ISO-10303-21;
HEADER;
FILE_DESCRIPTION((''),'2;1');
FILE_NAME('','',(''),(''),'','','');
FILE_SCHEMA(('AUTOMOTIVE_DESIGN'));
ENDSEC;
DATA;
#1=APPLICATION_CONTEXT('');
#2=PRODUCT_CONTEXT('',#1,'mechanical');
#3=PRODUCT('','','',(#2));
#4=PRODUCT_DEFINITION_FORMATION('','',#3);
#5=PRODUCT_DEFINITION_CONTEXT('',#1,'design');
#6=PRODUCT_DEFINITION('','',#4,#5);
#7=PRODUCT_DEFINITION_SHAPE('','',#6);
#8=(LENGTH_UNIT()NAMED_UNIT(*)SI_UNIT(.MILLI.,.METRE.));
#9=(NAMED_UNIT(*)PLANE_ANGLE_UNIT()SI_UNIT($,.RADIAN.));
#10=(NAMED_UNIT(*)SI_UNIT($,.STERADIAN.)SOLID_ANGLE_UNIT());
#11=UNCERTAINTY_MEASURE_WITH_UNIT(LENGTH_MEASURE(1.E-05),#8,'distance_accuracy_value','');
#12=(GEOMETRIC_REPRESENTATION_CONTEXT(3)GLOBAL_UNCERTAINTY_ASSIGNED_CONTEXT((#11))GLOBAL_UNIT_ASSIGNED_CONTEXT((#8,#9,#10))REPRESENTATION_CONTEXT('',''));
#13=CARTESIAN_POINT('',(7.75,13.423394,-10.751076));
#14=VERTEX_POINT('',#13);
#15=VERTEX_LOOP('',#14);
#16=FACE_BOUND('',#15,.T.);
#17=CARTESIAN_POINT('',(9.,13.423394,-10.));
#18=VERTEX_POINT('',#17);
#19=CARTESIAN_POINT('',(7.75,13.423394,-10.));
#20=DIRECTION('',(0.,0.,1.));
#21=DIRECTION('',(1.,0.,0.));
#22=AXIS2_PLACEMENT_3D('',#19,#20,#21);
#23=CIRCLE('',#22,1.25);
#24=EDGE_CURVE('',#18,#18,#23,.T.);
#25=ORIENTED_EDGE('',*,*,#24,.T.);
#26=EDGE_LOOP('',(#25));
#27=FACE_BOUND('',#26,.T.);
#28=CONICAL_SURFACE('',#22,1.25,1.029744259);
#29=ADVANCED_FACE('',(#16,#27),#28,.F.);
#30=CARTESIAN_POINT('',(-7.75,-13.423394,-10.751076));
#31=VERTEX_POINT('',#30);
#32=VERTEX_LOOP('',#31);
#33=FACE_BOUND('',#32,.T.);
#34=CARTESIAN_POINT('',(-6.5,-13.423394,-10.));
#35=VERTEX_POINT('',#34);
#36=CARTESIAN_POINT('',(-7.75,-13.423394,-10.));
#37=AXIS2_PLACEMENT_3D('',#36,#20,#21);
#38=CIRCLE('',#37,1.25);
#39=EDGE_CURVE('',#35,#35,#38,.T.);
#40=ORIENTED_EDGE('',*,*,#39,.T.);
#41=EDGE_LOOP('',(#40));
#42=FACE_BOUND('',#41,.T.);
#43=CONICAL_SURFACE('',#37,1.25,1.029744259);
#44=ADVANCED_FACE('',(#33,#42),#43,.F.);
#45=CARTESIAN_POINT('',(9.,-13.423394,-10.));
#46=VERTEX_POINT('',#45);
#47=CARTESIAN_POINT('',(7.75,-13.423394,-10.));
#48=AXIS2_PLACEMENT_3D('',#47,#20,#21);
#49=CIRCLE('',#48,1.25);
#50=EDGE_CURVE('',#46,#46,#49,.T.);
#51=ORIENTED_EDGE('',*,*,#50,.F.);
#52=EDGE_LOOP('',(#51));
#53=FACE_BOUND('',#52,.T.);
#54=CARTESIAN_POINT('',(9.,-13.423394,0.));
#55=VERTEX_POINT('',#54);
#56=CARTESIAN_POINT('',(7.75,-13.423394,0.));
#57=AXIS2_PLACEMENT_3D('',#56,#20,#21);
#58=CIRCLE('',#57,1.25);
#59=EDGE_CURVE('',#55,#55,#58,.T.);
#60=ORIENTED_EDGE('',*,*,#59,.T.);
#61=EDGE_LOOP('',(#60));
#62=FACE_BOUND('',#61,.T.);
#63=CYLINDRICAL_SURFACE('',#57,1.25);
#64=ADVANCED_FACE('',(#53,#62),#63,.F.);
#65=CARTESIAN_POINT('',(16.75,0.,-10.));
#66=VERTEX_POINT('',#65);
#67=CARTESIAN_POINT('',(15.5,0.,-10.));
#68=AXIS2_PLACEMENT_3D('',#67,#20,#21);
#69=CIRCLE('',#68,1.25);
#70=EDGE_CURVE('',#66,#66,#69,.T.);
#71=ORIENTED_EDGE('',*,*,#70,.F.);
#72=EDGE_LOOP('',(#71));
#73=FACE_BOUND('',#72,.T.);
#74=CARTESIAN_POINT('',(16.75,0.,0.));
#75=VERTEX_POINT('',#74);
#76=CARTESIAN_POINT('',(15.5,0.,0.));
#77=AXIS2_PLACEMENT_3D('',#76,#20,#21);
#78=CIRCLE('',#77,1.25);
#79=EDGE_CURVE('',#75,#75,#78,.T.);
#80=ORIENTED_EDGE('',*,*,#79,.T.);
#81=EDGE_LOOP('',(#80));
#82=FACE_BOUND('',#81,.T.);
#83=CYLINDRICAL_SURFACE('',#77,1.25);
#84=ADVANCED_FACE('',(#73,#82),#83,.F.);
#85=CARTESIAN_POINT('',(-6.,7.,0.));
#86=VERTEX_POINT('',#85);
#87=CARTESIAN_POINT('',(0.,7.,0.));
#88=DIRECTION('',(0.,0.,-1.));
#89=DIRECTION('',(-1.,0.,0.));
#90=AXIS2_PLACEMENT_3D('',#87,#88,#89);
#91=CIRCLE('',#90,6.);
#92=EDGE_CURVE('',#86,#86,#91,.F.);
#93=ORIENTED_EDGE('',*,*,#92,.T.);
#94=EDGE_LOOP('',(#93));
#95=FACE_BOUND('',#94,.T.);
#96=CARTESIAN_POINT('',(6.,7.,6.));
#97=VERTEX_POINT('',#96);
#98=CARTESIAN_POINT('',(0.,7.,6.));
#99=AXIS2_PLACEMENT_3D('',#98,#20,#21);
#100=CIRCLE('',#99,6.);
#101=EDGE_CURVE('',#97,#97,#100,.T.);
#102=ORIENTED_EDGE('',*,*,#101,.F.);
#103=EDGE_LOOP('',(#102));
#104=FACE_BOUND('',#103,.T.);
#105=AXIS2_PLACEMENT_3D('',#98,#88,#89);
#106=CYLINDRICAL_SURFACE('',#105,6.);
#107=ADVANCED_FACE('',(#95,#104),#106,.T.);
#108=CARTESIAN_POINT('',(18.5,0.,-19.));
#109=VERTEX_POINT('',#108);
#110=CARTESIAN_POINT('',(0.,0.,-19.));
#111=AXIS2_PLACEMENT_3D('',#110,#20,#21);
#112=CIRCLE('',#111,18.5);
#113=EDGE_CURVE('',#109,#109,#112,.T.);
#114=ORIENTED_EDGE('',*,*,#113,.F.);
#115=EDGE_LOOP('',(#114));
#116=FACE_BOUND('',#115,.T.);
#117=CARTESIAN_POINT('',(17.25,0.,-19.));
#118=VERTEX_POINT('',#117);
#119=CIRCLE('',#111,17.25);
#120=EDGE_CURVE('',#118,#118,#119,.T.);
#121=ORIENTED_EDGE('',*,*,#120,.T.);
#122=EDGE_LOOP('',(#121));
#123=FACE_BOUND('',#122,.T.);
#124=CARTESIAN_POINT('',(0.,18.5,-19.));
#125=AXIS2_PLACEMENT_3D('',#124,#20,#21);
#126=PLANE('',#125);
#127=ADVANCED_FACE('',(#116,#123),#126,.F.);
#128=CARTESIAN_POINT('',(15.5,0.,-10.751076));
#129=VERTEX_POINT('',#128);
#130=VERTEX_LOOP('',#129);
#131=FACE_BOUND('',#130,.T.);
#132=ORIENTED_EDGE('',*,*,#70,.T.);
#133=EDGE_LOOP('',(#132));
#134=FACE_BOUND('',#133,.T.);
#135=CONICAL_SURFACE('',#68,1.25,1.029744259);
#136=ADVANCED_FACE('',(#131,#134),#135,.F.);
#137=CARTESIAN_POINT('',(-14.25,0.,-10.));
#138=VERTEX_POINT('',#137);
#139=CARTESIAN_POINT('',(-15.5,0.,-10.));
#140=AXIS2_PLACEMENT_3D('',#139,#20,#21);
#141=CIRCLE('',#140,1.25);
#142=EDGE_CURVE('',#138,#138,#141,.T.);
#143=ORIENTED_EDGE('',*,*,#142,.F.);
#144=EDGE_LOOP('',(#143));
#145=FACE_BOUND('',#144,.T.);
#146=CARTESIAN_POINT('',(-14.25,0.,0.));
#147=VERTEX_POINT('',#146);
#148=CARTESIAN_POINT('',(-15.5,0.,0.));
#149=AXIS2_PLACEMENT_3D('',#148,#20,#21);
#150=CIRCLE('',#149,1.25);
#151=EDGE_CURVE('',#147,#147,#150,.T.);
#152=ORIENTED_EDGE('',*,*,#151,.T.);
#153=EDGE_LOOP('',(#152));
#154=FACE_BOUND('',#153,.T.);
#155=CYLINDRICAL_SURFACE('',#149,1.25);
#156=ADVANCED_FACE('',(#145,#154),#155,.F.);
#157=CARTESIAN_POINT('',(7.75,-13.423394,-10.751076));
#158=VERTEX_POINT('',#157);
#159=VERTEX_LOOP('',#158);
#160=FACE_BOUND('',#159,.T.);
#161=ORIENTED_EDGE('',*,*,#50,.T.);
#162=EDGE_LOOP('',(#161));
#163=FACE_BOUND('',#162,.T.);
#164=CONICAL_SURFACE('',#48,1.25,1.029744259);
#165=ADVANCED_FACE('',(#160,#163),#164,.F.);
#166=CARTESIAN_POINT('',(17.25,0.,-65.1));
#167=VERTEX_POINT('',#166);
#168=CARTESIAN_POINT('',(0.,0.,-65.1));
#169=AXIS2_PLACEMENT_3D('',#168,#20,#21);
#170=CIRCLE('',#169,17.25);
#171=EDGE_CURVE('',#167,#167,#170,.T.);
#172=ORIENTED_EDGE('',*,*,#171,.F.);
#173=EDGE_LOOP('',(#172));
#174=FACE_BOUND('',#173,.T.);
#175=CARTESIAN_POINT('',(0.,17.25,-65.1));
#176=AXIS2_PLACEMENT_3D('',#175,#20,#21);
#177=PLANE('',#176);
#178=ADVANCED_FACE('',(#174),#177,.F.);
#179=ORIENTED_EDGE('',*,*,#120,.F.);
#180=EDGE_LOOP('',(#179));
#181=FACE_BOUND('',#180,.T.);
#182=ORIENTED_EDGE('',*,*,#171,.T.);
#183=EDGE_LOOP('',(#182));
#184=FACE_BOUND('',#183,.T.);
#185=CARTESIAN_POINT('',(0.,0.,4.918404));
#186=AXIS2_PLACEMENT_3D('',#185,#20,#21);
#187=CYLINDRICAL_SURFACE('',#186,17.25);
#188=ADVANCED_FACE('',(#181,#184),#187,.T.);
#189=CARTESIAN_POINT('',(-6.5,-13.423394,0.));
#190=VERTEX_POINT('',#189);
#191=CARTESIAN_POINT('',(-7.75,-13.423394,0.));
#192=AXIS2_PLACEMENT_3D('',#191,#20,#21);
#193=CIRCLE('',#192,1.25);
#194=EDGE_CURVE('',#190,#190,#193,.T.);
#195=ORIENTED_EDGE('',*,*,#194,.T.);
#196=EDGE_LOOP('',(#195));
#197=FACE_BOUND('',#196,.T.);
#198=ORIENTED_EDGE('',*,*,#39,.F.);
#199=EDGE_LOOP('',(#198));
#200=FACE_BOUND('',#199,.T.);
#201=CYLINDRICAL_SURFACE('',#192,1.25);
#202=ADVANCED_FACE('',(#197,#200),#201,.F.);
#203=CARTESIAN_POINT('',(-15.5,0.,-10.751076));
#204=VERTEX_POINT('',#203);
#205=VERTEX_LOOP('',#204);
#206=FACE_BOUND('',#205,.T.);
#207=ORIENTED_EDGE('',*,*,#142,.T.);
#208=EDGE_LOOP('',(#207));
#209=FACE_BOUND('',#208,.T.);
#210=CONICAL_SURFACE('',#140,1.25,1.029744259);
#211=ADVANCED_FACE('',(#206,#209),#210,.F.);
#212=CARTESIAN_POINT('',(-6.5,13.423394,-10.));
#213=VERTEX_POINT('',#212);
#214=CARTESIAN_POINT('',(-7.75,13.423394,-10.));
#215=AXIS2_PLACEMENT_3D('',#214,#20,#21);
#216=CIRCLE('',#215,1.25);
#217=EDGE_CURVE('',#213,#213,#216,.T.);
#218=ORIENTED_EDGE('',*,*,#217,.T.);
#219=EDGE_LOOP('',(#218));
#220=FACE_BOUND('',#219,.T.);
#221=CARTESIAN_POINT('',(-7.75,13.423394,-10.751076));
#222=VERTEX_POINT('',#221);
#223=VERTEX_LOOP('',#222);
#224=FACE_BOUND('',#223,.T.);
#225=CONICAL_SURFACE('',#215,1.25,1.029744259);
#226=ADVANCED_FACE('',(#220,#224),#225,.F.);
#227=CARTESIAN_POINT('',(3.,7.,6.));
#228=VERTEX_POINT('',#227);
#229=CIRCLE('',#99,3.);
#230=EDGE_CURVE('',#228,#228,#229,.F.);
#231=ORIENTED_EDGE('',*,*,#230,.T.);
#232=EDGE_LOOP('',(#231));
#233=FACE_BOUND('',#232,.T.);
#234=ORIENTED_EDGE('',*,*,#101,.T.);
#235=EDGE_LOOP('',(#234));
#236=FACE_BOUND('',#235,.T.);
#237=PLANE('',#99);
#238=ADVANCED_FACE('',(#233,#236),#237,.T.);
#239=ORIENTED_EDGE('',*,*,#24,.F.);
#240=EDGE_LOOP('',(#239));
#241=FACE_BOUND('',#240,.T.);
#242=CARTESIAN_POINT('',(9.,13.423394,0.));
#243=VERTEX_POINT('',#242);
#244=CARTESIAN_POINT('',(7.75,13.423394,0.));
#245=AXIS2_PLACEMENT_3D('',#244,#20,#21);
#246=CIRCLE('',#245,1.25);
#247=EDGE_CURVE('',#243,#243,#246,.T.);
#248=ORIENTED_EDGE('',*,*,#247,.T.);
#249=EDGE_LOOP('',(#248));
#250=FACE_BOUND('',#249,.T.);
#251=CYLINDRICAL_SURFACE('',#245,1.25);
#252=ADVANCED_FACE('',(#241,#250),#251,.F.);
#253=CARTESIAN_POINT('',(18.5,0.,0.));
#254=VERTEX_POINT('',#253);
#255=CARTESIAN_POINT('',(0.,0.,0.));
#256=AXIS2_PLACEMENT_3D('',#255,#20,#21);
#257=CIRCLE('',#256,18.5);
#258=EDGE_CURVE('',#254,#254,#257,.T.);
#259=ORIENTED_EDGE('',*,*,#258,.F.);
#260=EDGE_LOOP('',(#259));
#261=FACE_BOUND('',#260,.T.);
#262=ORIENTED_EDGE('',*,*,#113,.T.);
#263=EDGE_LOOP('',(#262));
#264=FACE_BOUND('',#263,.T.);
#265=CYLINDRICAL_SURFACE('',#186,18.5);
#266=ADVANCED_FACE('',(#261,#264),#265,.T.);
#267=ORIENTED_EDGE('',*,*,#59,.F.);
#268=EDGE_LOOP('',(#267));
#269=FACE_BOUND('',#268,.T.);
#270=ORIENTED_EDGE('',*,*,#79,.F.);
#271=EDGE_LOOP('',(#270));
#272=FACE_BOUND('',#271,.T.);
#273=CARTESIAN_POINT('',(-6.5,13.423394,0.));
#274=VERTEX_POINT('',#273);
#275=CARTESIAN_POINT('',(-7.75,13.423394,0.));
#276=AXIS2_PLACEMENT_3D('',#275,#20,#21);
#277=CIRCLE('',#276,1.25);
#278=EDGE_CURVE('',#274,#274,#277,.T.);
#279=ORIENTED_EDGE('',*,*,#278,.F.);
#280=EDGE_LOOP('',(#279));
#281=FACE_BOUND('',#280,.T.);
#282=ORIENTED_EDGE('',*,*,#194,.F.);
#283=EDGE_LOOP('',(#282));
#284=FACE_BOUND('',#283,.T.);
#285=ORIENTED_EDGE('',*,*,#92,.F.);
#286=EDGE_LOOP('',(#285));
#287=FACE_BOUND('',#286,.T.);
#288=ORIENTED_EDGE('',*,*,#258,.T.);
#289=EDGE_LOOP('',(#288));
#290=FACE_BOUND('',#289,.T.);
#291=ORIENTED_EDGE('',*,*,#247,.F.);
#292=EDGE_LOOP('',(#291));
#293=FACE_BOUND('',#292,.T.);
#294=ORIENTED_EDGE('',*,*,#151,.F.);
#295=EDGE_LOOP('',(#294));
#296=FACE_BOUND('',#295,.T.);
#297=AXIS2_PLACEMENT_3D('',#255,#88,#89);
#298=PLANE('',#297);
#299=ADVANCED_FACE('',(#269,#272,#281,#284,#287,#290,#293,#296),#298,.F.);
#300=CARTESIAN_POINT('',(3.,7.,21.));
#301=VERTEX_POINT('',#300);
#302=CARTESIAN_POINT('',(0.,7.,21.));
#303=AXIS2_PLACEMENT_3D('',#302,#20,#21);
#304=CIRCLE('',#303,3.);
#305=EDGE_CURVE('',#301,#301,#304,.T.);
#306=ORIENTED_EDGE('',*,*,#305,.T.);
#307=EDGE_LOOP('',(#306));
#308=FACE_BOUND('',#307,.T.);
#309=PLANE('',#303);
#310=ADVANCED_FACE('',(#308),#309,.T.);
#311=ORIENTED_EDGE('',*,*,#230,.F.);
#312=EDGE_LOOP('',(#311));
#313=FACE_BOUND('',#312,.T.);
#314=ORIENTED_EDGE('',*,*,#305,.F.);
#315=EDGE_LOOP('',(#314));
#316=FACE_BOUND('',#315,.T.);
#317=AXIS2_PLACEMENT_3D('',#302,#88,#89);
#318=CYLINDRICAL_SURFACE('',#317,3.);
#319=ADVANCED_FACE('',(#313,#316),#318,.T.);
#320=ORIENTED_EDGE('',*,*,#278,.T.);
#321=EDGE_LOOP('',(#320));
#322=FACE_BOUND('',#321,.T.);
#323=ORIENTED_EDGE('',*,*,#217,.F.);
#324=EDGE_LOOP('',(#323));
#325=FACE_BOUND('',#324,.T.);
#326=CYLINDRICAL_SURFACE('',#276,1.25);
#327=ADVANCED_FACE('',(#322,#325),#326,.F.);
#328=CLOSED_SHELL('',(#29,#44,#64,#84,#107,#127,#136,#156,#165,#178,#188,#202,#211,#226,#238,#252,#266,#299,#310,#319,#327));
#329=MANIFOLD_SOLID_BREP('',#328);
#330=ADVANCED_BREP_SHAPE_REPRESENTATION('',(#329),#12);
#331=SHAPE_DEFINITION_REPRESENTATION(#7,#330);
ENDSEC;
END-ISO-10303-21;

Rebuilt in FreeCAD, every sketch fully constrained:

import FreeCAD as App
import Part
import Sketcher
from FreeCAD import Vector


def add_polygon(sketch, points):
    """Adds a closed chain of lines whose ends are joined by coincident constraints."""
    first, n = sketch.GeometryCount, len(points)
    for a, b in zip(points, points[1:] + points[:1]):
        sketch.addGeometry(Part.LineSegment(App.Vector(*a, 0), App.Vector(*b, 0)), False)
    for i in range(n):
        sketch.addConstraint(Sketcher.Constraint("Coincident", first + i, 2, first + (i + 1) % n, 1))

doc = App.newDocument("Part")
params = doc.addObject("Spreadsheet::Sheet", "Params")
for row, (alias, value) in enumerate([
    ("sketch1_height", "19 mm"),
    ("sketch1_width", "18.5 mm"),
    ("sketch1_height2", "65.1 mm"),
    ("sketch1_width2", "17.25 mm"),
    ("revolution_angle", "360 deg"),
    ("sketch2_diameter", "12 mm"),
    ("pad1_length", "6 mm"),
    ("sketch3_diameter", "6 mm"),
    ("pad2_length", "21 mm"),
    ("sketch4_diameter", "2.5 mm"),
    ("hole_diameter", "2.5 mm"),
    ("hole_depth", "10 mm"),
], start=1):
    params.set(f"A{row}", alias)
    params.set(f"B{row}", "=" + value)
    params.setAlias(f"B{row}", alias)

body = doc.addObject("PartDesign::Body", "Body")

# Sketch on YZ plane
sketch1 = body.newObject("Sketcher::SketchObject", "Sketch")
sketch1.AttachmentSupport = (doc.getObject("YZ_Plane"), [""])
sketch1.MapMode = "FlatFace"
add_polygon(sketch1, [(18.5, 0), (0, 0), (0, -65.1), (17.2, -65.1), (17.2, -19), (18.5, -19)])  # lines 0-5
sketch1.addConstraint([
    Sketcher.Constraint("Horizontal", 0),
    Sketcher.Constraint("Vertical", 1),
    Sketcher.Constraint("Horizontal", 2),
    Sketcher.Constraint("Vertical", 3),
    Sketcher.Constraint("Horizontal", 4),
    Sketcher.Constraint("Vertical", 5),
    Sketcher.Constraint("Coincident", 0, 2, -1, 1),
    Sketcher.Constraint("DistanceY", 5, 1, 5, 2, 19.0),
    Sketcher.Constraint("DistanceX", 0, 2, 0, 1, 18.5),
    Sketcher.Constraint("DistanceY", 1, 2, 1, 1, 65.1),
    Sketcher.Constraint("DistanceX", 2, 1, 2, 2, 17.25),
])
sketch1.setExpression("Constraints[13]", "Params.sketch1_height")
sketch1.setExpression("Constraints[14]", "Params.sketch1_width")
sketch1.setExpression("Constraints[15]", "Params.sketch1_height2")
sketch1.setExpression("Constraints[16]", "Params.sketch1_width2")
revolution = body.newObject("PartDesign::Revolution", "Revolution")
revolution.Profile = sketch1
revolution.ReferenceAxis = (sketch1, ["V_Axis"])
revolution.setExpression("Angle", "Params.revolution_angle")

# Sketch on XY plane
sketch2 = body.newObject("Sketcher::SketchObject", "Sketch001")
sketch2.AttachmentSupport = (doc.getObject("XY_Plane"), [""])
sketch2.MapMode = "FlatFace"
sketch2.addGeometry(Part.Circle(Vector(0, 7, 0), Vector(0, 0, 1), 6), False)
sketch2.addConstraint([
    Sketcher.Constraint("PointOnObject", 0, 3, -2),
    Sketcher.Constraint("Diameter", 0, 12.0),
    Sketcher.Constraint("DistanceY", -1, 1, 0, 3, 7.0),
])
sketch2.setExpression("Constraints[1]", "Params.sketch2_diameter")
pad1 = body.newObject("PartDesign::Pad", "Pad")
pad1.Profile = sketch2
pad1.setExpression("Length", "Params.pad1_length")

# Sketch on XY plane
sketch3 = body.newObject("Sketcher::SketchObject", "Sketch002")
sketch3.AttachmentSupport = (doc.getObject("XY_Plane"), [""])
sketch3.MapMode = "FlatFace"
sketch3.addGeometry(Part.Circle(Vector(0, 7, 0), Vector(0, 0, 1), 3), False)
sketch3.addConstraint([
    Sketcher.Constraint("PointOnObject", 0, 3, -2),
    Sketcher.Constraint("Diameter", 0, 6.0),
    Sketcher.Constraint("DistanceY", -1, 1, 0, 3, 7.0),
])
sketch3.setExpression("Constraints[1]", "Params.sketch3_diameter")
pad2 = body.newObject("PartDesign::Pad", "Pad001")
pad2.Profile = sketch3
pad2.setExpression("Length", "Params.pad2_length")

# Sketch on XY plane
sketch4 = body.newObject("Sketcher::SketchObject", "Sketch003")
sketch4.AttachmentSupport = (doc.getObject("XY_Plane"), [""])
sketch4.MapMode = "FlatFace"
sketch4.addGeometry([
    Part.Circle(Vector(-15.5, 0, 0), Vector(0, 0, 1), 1.2),  # 0
    Part.Circle(Vector(-7.8, 13.4, 0), Vector(0, 0, 1), 1.2),  # 1
    Part.Circle(Vector(7.8, 13.4, 0), Vector(0, 0, 1), 1.2),  # 2
    Part.Circle(Vector(15.5, 0, 0), Vector(0, 0, 1), 1.2),  # 3
    Part.Circle(Vector(7.8, -13.4, 0), Vector(0, 0, 1), 1.2),  # 4
    Part.Circle(Vector(-7.8, -13.4, 0), Vector(0, 0, 1), 1.2),  # 5
], False)
sketch4.addConstraint([
    Sketcher.Constraint("Equal", 0, 1),
    Sketcher.Constraint("Equal", 1, 2),
    Sketcher.Constraint("Equal", 2, 3),
    Sketcher.Constraint("Equal", 3, 4),
    Sketcher.Constraint("Equal", 4, 5),
    Sketcher.Constraint("Symmetric", 0, 3, 3, 3, -1, 1),
    Sketcher.Constraint("Symmetric", 1, 3, 4, 3, -1, 1),
    Sketcher.Constraint("Symmetric", 2, 3, 5, 3, -1, 1),
    Sketcher.Constraint("Symmetric", 1, 3, 2, 3, -2),
    Sketcher.Constraint("PointOnObject", 0, 3, -1),
    Sketcher.Constraint("Diameter", 0, 2.5),
    Sketcher.Constraint("DistanceX", 0, 3, 3, 3, 31.0),
    Sketcher.Constraint("DistanceX", 1, 3, 2, 3, 15.5),
    Sketcher.Constraint("DistanceY", -1, 1, 1, 3, 13.423394),
])
sketch4.setExpression("Constraints[10]", "Params.sketch4_diameter")
doc.recompute()
hole = body.newObject("PartDesign::Hole", "Hole")
hole.Profile = sketch4
hole.ThreadType = "None"
hole.setExpression("Diameter", "Params.hole_diameter")
hole.DepthType = "Dimension"
hole.setExpression("Depth", "Params.hole_depth")
hole.DrillPoint = "Angled"
hole.DrillPointAngle = 118

doc.recompute()
